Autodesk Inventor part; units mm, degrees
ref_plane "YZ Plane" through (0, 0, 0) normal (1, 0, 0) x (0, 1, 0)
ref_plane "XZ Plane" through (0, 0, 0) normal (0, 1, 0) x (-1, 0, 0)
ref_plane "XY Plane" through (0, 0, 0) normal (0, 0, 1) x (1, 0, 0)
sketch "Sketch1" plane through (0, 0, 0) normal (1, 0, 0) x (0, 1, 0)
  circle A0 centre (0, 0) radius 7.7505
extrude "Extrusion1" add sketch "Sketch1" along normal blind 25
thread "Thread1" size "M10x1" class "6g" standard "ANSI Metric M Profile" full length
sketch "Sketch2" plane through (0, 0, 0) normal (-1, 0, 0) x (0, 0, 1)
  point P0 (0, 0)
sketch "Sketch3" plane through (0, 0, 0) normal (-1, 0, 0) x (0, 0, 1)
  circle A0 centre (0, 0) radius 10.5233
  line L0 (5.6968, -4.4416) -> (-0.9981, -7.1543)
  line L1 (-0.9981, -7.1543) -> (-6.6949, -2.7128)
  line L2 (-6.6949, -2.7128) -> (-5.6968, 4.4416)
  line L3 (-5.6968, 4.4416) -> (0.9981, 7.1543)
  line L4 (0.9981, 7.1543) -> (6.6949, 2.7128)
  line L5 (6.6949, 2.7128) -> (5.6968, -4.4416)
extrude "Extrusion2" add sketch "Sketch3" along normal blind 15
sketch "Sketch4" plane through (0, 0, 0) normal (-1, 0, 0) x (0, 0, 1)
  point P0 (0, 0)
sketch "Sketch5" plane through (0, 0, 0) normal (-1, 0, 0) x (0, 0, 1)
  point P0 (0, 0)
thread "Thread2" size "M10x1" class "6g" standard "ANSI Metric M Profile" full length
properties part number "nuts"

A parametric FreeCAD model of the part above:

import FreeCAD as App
import Part
import Sketcher

doc = App.newDocument("Part")
body = doc.addObject("PartDesign::Body", "Body")

# Sketch on YZ plane
sketch1 = body.newObject("Sketcher::SketchObject", "Sketch")
sketch1.AttachmentSupport = (doc.getObject("YZ_Plane"), [""])
sketch1.MapMode = "FlatFace"
sketch1.addGeometry(Part.Circle(App.Vector(0, 0, 0), App.Vector(0, 0, 1), 8), False)
sketch1.addConstraint([
    Sketcher.Constraint("Coincident", 0, 3, -1, 1),
    Sketcher.Constraint("Diameter", 0, 15.501),
])
pad1 = body.newObject("PartDesign::Pad", "Pad")
pad1.Profile = sketch1
pad1.Length = 25

# Sketch on YZ plane
sketch2 = body.newObject("Sketcher::SketchObject", "Sketch001")
sketch2.AttachmentSupport = (doc.getObject("YZ_Plane"), [""])
sketch2.MapMode = "FlatFace"
sketch2.addGeometry([
    Part.Circle(App.Vector(0, 0, 0), App.Vector(0, 0, 1), 11),  # 0
    Part.LineSegment(App.Vector(3, 7, 0), App.Vector(-4, 6, 0)),  # 1
    Part.LineSegment(App.Vector(-4, 6, 0), App.Vector(-7, -1, 0)),  # 2
    Part.LineSegment(App.Vector(-7, -1, 0), App.Vector(-3, -7, 0)),  # 3
    Part.LineSegment(App.Vector(-3, -7, 0), App.Vector(4, -6, 0)),  # 4
    Part.LineSegment(App.Vector(4, -6, 0), App.Vector(7, 1, 0)),  # 5
    Part.LineSegment(App.Vector(7, 1, 0), App.Vector(3, 7, 0)),  # 6
], False)
sketch2.addConstraint([
    Sketcher.Constraint("Coincident", 1, 2, 2, 1),
    Sketcher.Constraint("Coincident", 2, 2, 3, 1),
    Sketcher.Constraint("Coincident", 3, 2, 4, 1),
    Sketcher.Constraint("Coincident", 4, 2, 5, 1),
    Sketcher.Constraint("Coincident", 5, 2, 6, 1),
    Sketcher.Constraint("Coincident", 6, 2, 1, 1),
    Sketcher.Constraint("Coincident", 0, 3, -1, 1),
    Sketcher.Constraint("Symmetric", 1, 2, 4, 2, -1, 1),
    Sketcher.Constraint("Symmetric", 2, 2, 5, 2, -1, 1),
    Sketcher.Constraint("Symmetric", 3, 2, 6, 2, -1, 1),
    Sketcher.Constraint("Equal", 1, 2),
    Sketcher.Constraint("Equal", 2, 3),
    Sketcher.Constraint("Diameter", 0, 21.0466),
    Sketcher.Constraint("DistanceY", 2, 2, -1, 1, 0.998),
    Sketcher.Constraint("DistanceY", 3, 2, -1, 1, 6.695),
    Sketcher.Constraint("DistanceY", 2, 2, 1, 2, 6.695),
    Sketcher.Constraint("DistanceX", 2, 2, 4, 2, 11.596),
])
pad2 = body.newObject("PartDesign::Pad", "Pad001")
pad2.Profile = sketch2
pad2.Length = 15
pad2.Reversed = True

doc.recompute()
